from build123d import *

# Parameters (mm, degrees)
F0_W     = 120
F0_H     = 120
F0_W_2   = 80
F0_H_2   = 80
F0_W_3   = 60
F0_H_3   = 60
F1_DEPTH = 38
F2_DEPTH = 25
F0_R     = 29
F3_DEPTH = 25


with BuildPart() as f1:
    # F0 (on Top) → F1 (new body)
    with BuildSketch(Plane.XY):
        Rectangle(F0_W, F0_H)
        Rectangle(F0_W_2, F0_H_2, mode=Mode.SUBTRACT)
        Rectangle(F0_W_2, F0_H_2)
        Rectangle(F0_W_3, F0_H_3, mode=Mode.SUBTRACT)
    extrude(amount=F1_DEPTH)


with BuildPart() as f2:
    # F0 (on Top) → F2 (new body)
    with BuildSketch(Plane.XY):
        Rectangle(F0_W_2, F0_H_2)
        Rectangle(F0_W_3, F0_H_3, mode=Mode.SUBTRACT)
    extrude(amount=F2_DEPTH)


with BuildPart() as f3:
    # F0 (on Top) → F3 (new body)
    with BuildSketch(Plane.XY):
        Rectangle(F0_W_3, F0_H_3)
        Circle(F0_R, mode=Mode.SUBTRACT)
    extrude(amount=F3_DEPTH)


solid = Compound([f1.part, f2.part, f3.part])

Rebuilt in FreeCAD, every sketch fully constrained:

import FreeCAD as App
import Part
import Sketcher
from FreeCAD import Vector


def add_polygon(sketch, points):
    """Adds a closed chain of lines whose ends are joined by coincident constraints."""
    first, n = sketch.GeometryCount, len(points)
    for a, b in zip(points, points[1:] + points[:1]):
        sketch.addGeometry(Part.LineSegment(App.Vector(*a, 0), App.Vector(*b, 0)), False)
    for i in range(n):
        sketch.addConstraint(Sketcher.Constraint("Coincident", first + i, 2, first + (i + 1) % n, 1))

doc = App.newDocument("Part")
body = doc.addObject("PartDesign::Body", "Body")

# Sketch on XY plane
sketch1 = body.newObject("Sketcher::SketchObject", "Sketch")
sketch1.AttachmentSupport = (doc.getObject("XY_Plane"), [""])
sketch1.MapMode = "FlatFace"
add_polygon(sketch1, [(-60, 60), (-60, -60), (60, -60), (60, 60)])  # lines 0-3
add_polygon(sketch1, [(30, -30), (-30, -30), (-30, 30), (30, 30)])  # lines 4-7
sketch1.addConstraint([
    Sketcher.Constraint("Vertical", 0),
    Sketcher.Constraint("Horizontal", 1),
    Sketcher.Constraint("Vertical", 2),
    Sketcher.Constraint("Horizontal", 3),
    Sketcher.Constraint("Horizontal", 4),
    Sketcher.Constraint("Vertical", 5),
    Sketcher.Constraint("Horizontal", 6),
    Sketcher.Constraint("Vertical", 7),
    Sketcher.Constraint("Symmetric", 0, 2, 2, 2, -1, 1),
    Sketcher.Constraint("Symmetric", 4, 2, 6, 2, -1, 1),
    Sketcher.Constraint("Equal", 3, 0),
    Sketcher.Constraint("Equal", 6, 5),
    Sketcher.Constraint("DistanceX", 1, 1, 1, 2, 120.0),
    Sketcher.Constraint("DistanceX", 4, 2, 4, 1, 60.0),
])
pad1 = body.newObject("PartDesign::Pad", "Pad")
pad1.Profile = sketch1
pad1.Length = 38
body2 = doc.addObject("PartDesign::Body", "Body001")

# Sketch on XY plane
sketch2 = body2.newObject("Sketcher::SketchObject", "Sketch001")
sketch2.AttachmentSupport = (doc.getObject("XY_Plane001"), [""])
sketch2.MapMode = "FlatFace"
add_polygon(sketch2, [(-40, 40), (-40, -40), (40, -40), (40, 40)])  # lines 0-3
add_polygon(sketch2, [(30, -30), (-30, -30), (-30, 30), (30, 30)])  # lines 4-7
sketch2.addConstraint([
    Sketcher.Constraint("Vertical", 0),
    Sketcher.Constraint("Horizontal", 1),
    Sketcher.Constraint("Vertical", 2),
    Sketcher.Constraint("Horizontal", 3),
    Sketcher.Constraint("Horizontal", 4),
    Sketcher.Constraint("Vertical", 5),
    Sketcher.Constraint("Horizontal", 6),
    Sketcher.Constraint("Vertical", 7),
    Sketcher.Constraint("Symmetric", 0, 2, 2, 2, -1, 1),
    Sketcher.Constraint("Symmetric", 4, 2, 6, 2, -1, 1),
    Sketcher.Constraint("Equal", 3, 0),
    Sketcher.Constraint("Equal", 6, 5),
    Sketcher.Constraint("DistanceX", 1, 1, 1, 2, 80.0),
    Sketcher.Constraint("DistanceX", 4, 2, 4, 1, 60.0),
])
pad2 = body2.newObject("PartDesign::Pad", "Pad001")
pad2.Profile = sketch2
pad2.Length = 25
body3 = doc.addObject("PartDesign::Body", "Body002")

# Sketch on XY plane
sketch3 = body3.newObject("Sketcher::SketchObject", "Sketch002")
sketch3.AttachmentSupport = (doc.getObject("XY_Plane002"), [""])
sketch3.MapMode = "FlatFace"
add_polygon(sketch3, [(-30, 30), (-30, -30), (30, -30), (30, 30)])  # lines 0-3
sketch3.addGeometry(Part.Circle(Vector(0, 0, 0), Vector(0, 0, 1), 29), False)  # 4
sketch3.addConstraint([
    Sketcher.Constraint("Vertical", 0),
    Sketcher.Constraint("Horizontal", 1),
    Sketcher.Constraint("Vertical", 2),
    Sketcher.Constraint("Horizontal", 3),
    Sketcher.Constraint("Coincident", 4, 3, -1, 1),
    Sketcher.Constraint("Symmetric", 0, 2, 2, 2, -1, 1),
    Sketcher.Constraint("Equal", 3, 0),
    Sketcher.Constraint("Diameter", 4, 58.0),
    Sketcher.Constraint("DistanceX", 1, 1, 1, 2, 60.0),
])
pad3 = body3.newObject("PartDesign::Pad", "Pad002")
pad3.Profile = sketch3
pad3.Length = 25

doc.recompute()
